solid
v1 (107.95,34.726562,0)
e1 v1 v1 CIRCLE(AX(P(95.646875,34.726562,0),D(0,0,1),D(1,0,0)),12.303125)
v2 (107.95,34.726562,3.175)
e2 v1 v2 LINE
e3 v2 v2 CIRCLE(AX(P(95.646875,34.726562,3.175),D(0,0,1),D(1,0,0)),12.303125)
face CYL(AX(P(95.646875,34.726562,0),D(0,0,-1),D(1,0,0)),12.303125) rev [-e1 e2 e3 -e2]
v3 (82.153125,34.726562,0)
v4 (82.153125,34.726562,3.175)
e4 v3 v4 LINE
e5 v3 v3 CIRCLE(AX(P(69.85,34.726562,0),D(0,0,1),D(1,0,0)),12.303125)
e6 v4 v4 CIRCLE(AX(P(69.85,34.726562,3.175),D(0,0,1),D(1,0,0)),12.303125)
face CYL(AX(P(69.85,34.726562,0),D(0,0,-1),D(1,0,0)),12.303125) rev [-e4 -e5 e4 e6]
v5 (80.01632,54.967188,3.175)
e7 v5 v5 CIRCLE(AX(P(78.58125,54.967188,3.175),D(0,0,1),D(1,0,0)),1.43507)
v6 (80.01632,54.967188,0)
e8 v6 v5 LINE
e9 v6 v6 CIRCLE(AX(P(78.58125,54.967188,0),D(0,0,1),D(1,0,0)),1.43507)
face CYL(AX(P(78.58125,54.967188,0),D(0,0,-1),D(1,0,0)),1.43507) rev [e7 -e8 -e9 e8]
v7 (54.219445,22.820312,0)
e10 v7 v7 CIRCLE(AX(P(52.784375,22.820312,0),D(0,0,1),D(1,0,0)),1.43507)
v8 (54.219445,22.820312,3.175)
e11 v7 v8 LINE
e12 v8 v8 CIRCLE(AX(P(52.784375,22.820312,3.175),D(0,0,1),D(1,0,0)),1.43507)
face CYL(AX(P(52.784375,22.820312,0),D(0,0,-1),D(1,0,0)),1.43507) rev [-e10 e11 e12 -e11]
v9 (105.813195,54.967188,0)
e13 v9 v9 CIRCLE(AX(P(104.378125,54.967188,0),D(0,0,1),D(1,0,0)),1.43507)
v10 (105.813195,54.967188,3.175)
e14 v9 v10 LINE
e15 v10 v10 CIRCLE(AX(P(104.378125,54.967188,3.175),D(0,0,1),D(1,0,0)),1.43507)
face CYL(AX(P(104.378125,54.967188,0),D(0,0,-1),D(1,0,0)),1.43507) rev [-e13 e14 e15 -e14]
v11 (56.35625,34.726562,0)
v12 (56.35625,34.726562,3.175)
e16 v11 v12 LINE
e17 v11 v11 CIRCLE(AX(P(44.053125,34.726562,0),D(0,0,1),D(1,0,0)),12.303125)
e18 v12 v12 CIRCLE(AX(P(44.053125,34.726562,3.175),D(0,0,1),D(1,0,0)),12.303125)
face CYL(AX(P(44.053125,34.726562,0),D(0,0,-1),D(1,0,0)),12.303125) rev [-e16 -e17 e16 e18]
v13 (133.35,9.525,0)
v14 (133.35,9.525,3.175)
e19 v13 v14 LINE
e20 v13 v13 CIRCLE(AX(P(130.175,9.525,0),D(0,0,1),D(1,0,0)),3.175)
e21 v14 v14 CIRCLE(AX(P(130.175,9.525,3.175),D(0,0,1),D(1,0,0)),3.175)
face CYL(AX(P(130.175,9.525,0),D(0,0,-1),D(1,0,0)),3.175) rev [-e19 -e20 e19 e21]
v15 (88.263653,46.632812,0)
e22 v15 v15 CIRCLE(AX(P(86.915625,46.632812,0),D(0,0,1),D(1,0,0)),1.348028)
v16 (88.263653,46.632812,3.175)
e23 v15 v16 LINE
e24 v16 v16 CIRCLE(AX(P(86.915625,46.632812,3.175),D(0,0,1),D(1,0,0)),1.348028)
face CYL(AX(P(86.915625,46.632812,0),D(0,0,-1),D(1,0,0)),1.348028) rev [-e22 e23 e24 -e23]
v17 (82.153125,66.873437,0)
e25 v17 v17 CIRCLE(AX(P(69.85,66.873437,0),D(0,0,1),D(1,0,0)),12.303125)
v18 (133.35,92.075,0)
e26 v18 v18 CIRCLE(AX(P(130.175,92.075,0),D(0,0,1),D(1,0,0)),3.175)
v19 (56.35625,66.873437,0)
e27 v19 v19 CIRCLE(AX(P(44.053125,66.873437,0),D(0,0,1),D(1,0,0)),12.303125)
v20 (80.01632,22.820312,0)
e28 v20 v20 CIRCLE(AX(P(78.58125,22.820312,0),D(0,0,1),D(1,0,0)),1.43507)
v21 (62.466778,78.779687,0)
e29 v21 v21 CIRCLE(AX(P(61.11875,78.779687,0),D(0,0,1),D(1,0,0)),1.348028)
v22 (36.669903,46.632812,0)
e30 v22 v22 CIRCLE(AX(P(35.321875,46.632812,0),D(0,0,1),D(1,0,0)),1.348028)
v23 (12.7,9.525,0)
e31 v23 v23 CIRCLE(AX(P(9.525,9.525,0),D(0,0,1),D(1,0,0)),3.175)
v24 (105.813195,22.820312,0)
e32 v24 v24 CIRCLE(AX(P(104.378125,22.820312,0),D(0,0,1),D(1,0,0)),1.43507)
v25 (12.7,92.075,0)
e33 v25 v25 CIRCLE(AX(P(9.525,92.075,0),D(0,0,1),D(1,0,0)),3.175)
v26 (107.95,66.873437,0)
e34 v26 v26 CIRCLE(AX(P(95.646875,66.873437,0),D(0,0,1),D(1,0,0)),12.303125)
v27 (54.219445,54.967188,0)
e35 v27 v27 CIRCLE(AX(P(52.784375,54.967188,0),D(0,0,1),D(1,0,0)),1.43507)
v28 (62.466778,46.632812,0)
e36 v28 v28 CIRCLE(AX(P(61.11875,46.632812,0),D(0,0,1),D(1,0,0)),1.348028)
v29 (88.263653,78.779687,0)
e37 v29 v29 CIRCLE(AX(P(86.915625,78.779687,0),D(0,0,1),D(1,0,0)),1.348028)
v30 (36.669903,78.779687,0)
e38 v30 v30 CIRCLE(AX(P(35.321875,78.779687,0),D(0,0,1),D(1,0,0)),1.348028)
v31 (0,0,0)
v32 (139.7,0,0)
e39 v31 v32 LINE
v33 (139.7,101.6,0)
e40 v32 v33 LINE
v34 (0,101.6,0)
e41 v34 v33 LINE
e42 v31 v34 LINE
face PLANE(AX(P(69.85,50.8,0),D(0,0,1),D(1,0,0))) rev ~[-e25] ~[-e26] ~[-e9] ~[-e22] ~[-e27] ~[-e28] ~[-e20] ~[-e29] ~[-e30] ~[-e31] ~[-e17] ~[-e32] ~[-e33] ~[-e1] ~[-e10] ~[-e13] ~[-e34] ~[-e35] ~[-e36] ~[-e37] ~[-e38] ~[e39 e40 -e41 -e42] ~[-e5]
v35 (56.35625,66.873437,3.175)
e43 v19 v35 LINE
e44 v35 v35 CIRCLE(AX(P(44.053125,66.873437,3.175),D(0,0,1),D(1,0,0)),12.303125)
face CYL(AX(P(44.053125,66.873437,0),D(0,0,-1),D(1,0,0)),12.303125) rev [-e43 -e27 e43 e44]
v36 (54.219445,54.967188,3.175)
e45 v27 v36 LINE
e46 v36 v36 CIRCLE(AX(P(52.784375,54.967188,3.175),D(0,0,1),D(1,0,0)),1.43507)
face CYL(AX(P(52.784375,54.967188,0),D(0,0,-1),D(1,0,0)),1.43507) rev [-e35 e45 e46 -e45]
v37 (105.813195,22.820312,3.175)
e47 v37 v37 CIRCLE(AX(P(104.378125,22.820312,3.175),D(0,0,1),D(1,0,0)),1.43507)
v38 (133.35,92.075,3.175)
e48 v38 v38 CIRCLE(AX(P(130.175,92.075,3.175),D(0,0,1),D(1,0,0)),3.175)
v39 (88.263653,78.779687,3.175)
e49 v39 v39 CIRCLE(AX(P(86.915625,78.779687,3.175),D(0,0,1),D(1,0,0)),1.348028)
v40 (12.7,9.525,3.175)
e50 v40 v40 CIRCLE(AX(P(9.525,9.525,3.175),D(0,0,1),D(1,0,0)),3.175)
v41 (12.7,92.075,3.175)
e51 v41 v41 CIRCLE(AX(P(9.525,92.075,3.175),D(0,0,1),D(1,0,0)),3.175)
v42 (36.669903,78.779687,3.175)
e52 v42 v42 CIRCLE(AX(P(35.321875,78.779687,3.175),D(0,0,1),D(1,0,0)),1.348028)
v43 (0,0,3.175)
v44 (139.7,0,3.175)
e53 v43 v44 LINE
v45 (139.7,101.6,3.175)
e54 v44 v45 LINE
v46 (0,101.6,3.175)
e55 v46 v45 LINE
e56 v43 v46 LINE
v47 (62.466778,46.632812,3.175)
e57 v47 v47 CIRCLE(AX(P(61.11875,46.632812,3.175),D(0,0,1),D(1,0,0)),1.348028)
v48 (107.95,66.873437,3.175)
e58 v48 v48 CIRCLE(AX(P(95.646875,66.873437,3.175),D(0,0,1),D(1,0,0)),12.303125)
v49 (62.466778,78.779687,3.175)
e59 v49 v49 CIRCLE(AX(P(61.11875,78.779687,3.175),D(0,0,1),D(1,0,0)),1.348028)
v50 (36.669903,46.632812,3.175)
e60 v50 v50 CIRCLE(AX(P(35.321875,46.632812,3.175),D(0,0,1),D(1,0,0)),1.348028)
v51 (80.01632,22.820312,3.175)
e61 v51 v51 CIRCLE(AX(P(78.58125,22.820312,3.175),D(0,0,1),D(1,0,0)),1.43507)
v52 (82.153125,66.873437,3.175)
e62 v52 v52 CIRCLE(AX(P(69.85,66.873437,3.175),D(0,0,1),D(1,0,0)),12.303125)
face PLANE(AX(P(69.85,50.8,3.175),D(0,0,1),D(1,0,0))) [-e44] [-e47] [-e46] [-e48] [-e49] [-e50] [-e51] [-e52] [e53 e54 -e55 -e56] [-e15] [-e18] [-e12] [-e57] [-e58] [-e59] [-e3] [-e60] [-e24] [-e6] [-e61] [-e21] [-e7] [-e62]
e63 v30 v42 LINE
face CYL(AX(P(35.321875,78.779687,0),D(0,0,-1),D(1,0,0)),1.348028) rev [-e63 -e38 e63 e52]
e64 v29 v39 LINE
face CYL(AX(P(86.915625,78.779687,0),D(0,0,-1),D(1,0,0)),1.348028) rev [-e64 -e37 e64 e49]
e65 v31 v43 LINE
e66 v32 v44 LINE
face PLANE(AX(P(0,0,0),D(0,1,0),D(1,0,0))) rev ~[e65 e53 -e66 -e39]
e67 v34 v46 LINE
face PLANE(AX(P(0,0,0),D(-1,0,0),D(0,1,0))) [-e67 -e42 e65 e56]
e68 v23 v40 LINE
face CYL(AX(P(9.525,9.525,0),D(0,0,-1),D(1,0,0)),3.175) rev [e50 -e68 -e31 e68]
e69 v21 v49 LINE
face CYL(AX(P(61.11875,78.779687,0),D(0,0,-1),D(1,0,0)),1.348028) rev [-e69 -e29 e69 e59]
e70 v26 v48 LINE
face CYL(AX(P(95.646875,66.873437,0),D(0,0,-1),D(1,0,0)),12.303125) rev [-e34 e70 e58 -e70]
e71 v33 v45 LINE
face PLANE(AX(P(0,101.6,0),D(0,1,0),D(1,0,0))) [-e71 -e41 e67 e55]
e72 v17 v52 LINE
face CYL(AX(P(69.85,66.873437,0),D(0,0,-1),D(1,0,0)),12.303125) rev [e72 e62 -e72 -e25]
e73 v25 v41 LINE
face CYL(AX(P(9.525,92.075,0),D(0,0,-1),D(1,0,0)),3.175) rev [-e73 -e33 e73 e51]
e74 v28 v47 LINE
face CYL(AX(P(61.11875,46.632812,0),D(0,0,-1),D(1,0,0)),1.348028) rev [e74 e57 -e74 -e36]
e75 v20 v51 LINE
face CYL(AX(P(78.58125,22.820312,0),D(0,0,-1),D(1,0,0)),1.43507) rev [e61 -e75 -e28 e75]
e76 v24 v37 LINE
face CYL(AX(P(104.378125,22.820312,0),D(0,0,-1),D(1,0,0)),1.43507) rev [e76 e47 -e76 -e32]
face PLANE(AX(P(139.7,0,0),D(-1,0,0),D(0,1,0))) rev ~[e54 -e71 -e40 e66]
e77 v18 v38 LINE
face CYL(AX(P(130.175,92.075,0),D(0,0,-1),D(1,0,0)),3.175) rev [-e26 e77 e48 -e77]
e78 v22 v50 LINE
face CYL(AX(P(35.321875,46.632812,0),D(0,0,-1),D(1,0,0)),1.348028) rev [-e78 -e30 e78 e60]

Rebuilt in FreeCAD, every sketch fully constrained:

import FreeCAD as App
import Part
import Sketcher

V = App.Vector
Q = App.Units.Quantity

doc = App.newDocument("Part")
body = doc.addObject("PartDesign::Body", "Body")

# Sketch on XY plane
sketch1 = body.newObject("Sketcher::SketchObject", "Sketch")
sketch1.AttachmentSupport = (doc.getObject("XY_Plane"), [""])
sketch1.MapMode = "FlatFace"
sketch1.addGeometry([
    Part.LineSegment(V(0, 101.6, 0), V(0, 0, 0)),  # 0
    Part.LineSegment(V(0, 0, 0), V(139.7, 0, 0)),  # 1
    Part.LineSegment(V(139.7, 0, 0), V(139.7, 101.6, 0)),  # 2
    Part.LineSegment(V(139.7, 101.6, 0), V(0, 101.6, 0)),  # 3
    Part.Circle(V(9.5, 9.5, 0), V(0, 0, 1), 3.2),  # 4
    Part.Circle(V(52.8, 22.8, 0), V(0, 0, 1), 1.4),  # 5
    Part.Circle(V(35.3, 46.6, 0), V(0, 0, 1), 1.3),  # 6
    Part.Circle(V(44.1, 34.7, 0), V(0, 0, 1), 12.3),  # 7
    Part.Circle(V(69.8, 34.7, 0), V(0, 0, 1), 12.3),  # 8
    Part.Circle(V(61.1, 46.6, 0), V(0, 0, 1), 1.3),  # 9
    Part.Circle(V(78.6, 22.8, 0), V(0, 0, 1), 1.4),  # 10
    Part.Circle(V(130.2, 9.5, 0), V(0, 0, 1), 3.2),  # 11
    Part.Circle(V(104.4, 22.8, 0), V(0, 0, 1), 1.4),  # 12
    Part.Circle(V(95.6, 34.7, 0), V(0, 0, 1), 12.3),  # 13
    Part.Circle(V(86.9, 46.6, 0), V(0, 0, 1), 1.3),  # 14
    Part.Circle(V(52.8, 55, 0), V(0, 0, 1), 1.4),  # 15
    Part.Circle(V(44.1, 66.9, 0), V(0, 0, 1), 12.3),  # 16
    Part.Circle(V(69.8, 66.9, 0), V(0, 0, 1), 12.3),  # 17
    Part.Circle(V(35.3, 78.8, 0), V(0, 0, 1), 1.3),  # 18
    Part.Circle(V(9.5, 92.1, 0), V(0, 0, 1), 3.2),  # 19
    Part.Circle(V(61.1, 78.8, 0), V(0, 0, 1), 1.3),  # 20
    Part.Circle(V(78.6, 55, 0), V(0, 0, 1), 1.4),  # 21
    Part.Circle(V(95.6, 66.9, 0), V(0, 0, 1), 12.3),  # 22
    Part.Circle(V(104.4, 55, 0), V(0, 0, 1), 1.4),  # 23
    Part.Circle(V(86.9, 78.8, 0), V(0, 0, 1), 1.3),  # 24
    Part.Circle(V(130.2, 92.1, 0), V(0, 0, 1), 3.2),  # 25
], False)
sketch1.addConstraint([
    Sketcher.Constraint("Coincident", 0, 2, 1, 1),
    Sketcher.Constraint("Coincident", 1, 2, 2, 1),
    Sketcher.Constraint("Coincident", 2, 2, 3, 1),
    Sketcher.Constraint("Coincident", 3, 2, 0, 1),
    Sketcher.Constraint("Vertical", 0),
    Sketcher.Constraint("Horizontal", 1),
    Sketcher.Constraint("Vertical", 2),
    Sketcher.Constraint("Horizontal", 3),
    Sketcher.Constraint("Coincident", 0, 2, -1, 1),
    Sketcher.Constraint("Equal", 7, 8),
    Sketcher.Constraint("Equal", 6, 9),
    Sketcher.Constraint("Equal", 5, 10),
    Sketcher.Constraint("Equal", 4, 11),
    Sketcher.Constraint("Equal", 10, 12),
    Sketcher.Constraint("Equal", 8, 13),
    Sketcher.Constraint("Equal", 9, 14),
    Sketcher.Constraint("Equal", 12, 15),
    Sketcher.Constraint("Equal", 13, 16),
    Sketcher.Constraint("Equal", 16, 17),
    Sketcher.Constraint("Equal", 14, 18),
    Sketcher.Constraint("Equal", 11, 19),
    Sketcher.Constraint("Equal", 18, 20),
    Sketcher.Constraint("Equal", 15, 21),
    Sketcher.Constraint("Equal", 17, 22),
    Sketcher.Constraint("Equal", 21, 23),
    Sketcher.Constraint("Equal", 20, 24),
    Sketcher.Constraint("Equal", 19, 25),
    Sketcher.Constraint("Horizontal", 7, 3, 8, 3),
    Sketcher.Constraint("Horizontal", 6, 3, 9, 3),
    Sketcher.Constraint("Horizontal", 5, 3, 10, 3),
    Sketcher.Constraint("Horizontal", 4, 3, 11, 3),
    Sketcher.Constraint("Horizontal", 10, 3, 12, 3),
    Sketcher.Constraint("Horizontal", 8, 3, 13, 3),
    Sketcher.Constraint("Horizontal", 9, 3, 14, 3),
    Sketcher.Constraint("Horizontal", 16, 3, 17, 3),
    Sketcher.Constraint("Horizontal", 18, 3, 20, 3),
    Sketcher.Constraint("Horizontal", 15, 3, 21, 3),
    Sketcher.Constraint("Horizontal", 17, 3, 22, 3),
    Sketcher.Constraint("Horizontal", 21, 3, 23, 3),
    Sketcher.Constraint("Horizontal", 20, 3, 24, 3),
    Sketcher.Constraint("Horizontal", 19, 3, 25, 3),
    Sketcher.Constraint("Vertical", 5, 3, 15, 3),
    Sketcher.Constraint("Vertical", 7, 3, 16, 3),
    Sketcher.Constraint("Vertical", 8, 3, 17, 3),
    Sketcher.Constraint("Vertical", 6, 3, 18, 3),
    Sketcher.Constraint("Vertical", 4, 3, 19, 3),
    Sketcher.Constraint("Vertical", 9, 3, 20, 3),
    Sketcher.Constraint("Vertical", 10, 3, 21, 3),
    Sketcher.Constraint("Vertical", 13, 3, 22, 3),
    Sketcher.Constraint("Vertical", 12, 3, 23, 3),
    Sketcher.Constraint("Vertical", 14, 3, 24, 3),
    Sketcher.Constraint("Vertical", 11, 3, 25, 3),
    Sketcher.Constraint("Diameter", 4, Q("0.25 in")),
    Sketcher.Constraint("DistanceY", 0, 2, 0, 1, Q("4 in")),
    Sketcher.Constraint("Diameter", 7, Q("0.96875 in")),
    Sketcher.Constraint("DistanceX", 1, 1, 1, 2, Q("5.5 in")),
    Sketcher.Constraint("DistanceX", -1, 1, 8, 3, Q("2.75 in")),
    Sketcher.Constraint("Diameter", 5, Q("2.87014 mm")),
    Sketcher.Constraint("DistanceX", -1, 1, 4, 3, Q("0.375 in")),
    Sketcher.Constraint("DistanceY", -1, 1, 4, 3, Q("0.375 in")),
    Sketcher.Constraint("DistanceX", -1, 1, 5, 3, Q("2.078125 in")),
    Sketcher.Constraint("DistanceX", -1, 1, 6, 3, Q("1.390625 in")),
    Sketcher.Constraint("DistanceX", -1, 1, 7, 3, Q("1.734375 in")),
    Sketcher.Constraint("DistanceX", -1, 1, 9, 3, Q("2.40625 in")),
    Sketcher.Constraint("DistanceX", -1, 1, 10, 3, Q("3.09375 in")),
    Sketcher.Constraint("DistanceX", -1, 1, 11, 3, Q("5.125 in")),
    Sketcher.Constraint("DistanceX", -1, 1, 12, 3, Q("4.109375 in")),
    Sketcher.Constraint("DistanceX", -1, 1, 13, 3, Q("3.765625 in")),
    Sketcher.Constraint("DistanceX", -1, 1, 14, 3, Q("3.421875 in")),
    Sketcher.Constraint("DistanceY", -1, 1, 19, 3, Q("3.625 in")),
    Sketcher.Constraint("DistanceY", 5, 3, 6, 3, Q("0.9375 in")),
    Sketcher.Constraint("DistanceY", 5, 3, 7, 3, Q("0.46875 in")),
    Sketcher.Constraint("DistanceY", 9, 3, 15, 3, Q("0.328125 in")),
    Sketcher.Constraint("DistanceY", 15, 3, 16, 3, Q("0.46875 in")),
    Sketcher.Constraint("DistanceY", 16, 3, 18, 3, Q("0.46875 in")),
    Sketcher.Constraint("Diameter", 6, Q("2.696057 mm")),
    Sketcher.Constraint("DistanceY", -1, 1, 5, 3, Q("22.820312 mm")),
])
pad1 = body.newObject("PartDesign::Pad", "Pad")
pad1.Profile = sketch1
pad1.Length = Q("0.125 in")

doc.recompute()
